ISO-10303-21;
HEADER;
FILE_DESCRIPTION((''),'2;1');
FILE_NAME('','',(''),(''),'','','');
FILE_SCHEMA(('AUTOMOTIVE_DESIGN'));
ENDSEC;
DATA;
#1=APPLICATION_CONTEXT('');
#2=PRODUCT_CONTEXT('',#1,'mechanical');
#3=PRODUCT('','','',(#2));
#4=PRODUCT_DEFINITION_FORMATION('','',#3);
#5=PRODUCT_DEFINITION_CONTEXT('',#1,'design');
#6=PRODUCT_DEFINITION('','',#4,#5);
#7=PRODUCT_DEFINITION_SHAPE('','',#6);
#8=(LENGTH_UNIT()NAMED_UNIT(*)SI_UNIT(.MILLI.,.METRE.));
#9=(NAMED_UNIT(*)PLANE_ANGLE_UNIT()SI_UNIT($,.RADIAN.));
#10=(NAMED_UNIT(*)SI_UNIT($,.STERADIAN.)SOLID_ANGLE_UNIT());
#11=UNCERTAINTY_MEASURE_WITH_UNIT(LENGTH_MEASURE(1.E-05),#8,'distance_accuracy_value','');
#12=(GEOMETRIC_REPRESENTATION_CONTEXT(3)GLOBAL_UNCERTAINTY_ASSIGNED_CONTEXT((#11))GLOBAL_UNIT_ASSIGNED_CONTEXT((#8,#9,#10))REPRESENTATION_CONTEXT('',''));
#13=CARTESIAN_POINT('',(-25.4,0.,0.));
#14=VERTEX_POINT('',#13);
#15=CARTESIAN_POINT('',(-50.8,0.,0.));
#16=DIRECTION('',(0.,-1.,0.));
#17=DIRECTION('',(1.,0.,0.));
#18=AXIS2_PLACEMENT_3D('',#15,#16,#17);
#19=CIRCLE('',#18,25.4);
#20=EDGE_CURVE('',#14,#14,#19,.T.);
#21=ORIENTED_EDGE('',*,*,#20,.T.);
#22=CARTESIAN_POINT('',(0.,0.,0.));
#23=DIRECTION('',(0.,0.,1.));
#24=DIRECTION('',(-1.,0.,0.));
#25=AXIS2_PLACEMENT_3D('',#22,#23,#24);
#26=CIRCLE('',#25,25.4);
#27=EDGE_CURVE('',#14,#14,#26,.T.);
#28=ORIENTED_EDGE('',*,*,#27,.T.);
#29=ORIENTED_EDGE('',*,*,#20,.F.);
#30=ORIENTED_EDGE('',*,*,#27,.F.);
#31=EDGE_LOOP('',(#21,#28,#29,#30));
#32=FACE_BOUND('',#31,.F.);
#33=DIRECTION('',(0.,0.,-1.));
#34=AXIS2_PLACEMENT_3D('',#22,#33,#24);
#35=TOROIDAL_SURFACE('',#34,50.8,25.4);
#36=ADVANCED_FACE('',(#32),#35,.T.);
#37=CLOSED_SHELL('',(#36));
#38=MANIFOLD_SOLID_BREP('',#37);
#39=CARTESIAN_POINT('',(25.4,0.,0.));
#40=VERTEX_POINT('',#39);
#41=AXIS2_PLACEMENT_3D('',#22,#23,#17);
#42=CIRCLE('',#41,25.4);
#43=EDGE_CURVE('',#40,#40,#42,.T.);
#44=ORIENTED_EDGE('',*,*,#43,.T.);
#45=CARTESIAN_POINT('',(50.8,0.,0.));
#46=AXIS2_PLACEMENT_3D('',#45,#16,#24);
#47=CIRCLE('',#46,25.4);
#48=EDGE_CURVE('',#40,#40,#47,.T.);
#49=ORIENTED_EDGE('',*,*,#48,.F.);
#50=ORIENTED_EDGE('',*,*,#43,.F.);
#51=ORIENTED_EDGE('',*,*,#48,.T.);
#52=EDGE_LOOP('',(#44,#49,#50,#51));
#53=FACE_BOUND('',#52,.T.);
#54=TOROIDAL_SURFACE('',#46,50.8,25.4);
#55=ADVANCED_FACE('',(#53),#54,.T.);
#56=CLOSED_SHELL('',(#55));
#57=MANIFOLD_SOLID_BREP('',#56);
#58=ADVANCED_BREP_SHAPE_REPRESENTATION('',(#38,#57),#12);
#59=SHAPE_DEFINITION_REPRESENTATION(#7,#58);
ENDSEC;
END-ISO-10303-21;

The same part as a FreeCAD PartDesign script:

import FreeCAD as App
import Part
import Sketcher
Q = App.Units.Quantity

doc = App.newDocument("Part")
body = doc.addObject("PartDesign::Body", "Body")

sketch1 = body.newObject("Sketcher::SketchObject", "Sketch")
sketch1.AttachmentSupport = (doc.getObject("XZ_Plane"), [""])
sketch1.MapMode = "FlatFace"
sketch1.addGeometry(Part.Circle(App.Vector(-51, 0, 0), App.Vector(0, 0, 1), 25), False)
sketch1.addConstraint([
    Sketcher.Constraint("PointOnObject", 0, 3, -1),
    Sketcher.Constraint("Diameter", 0, Q("2 in")),
    Sketcher.Constraint("DistanceX", 0, 3, -1, 1, Q("2 in")),
])
revolution = body.newObject("PartDesign::Revolution", "Revolution")
revolution.Profile = sketch1
revolution.ReferenceAxis = (sketch1, ["V_Axis"])
revolution.Angle = 360
body2 = doc.addObject("PartDesign::Body", "Body001")

sketch2 = body2.newObject("Sketcher::SketchObject", "Sketch001")
sketch2.AttachmentSupport = (doc.getObject("XY_Plane001"), [""])
sketch2.MapMode = "FlatFace"
sketch2.addGeometry(Part.Circle(App.Vector(0, 0, 0), App.Vector(0, 0, 1), 25), False)
sketch2.addGeometry(Part.LineSegment(App.Vector(51, 0, 0), App.Vector(51, -10, 0)), True)
sketch2.addConstraint([
    Sketcher.Constraint("Vertical", 1),
    Sketcher.Constraint("Coincident", 0, 3, -1, 1),
    Sketcher.Constraint("PointOnObject", 1, 1, -1),
    Sketcher.Constraint("Diameter", 0, Q("2 in")),
    Sketcher.Constraint("DistanceX", -1, 1, 1, 1, Q("2 in")),
    Sketcher.Constraint("DistanceY", 1, 2, 1, 1, 10.0),
])
revolution2 = body2.newObject("PartDesign::Revolution", "Revolution001")
revolution2.Profile = sketch2
revolution2.ReferenceAxis = (sketch2, ["Axis0"])
revolution2.Angle = 360

doc.recompute()
